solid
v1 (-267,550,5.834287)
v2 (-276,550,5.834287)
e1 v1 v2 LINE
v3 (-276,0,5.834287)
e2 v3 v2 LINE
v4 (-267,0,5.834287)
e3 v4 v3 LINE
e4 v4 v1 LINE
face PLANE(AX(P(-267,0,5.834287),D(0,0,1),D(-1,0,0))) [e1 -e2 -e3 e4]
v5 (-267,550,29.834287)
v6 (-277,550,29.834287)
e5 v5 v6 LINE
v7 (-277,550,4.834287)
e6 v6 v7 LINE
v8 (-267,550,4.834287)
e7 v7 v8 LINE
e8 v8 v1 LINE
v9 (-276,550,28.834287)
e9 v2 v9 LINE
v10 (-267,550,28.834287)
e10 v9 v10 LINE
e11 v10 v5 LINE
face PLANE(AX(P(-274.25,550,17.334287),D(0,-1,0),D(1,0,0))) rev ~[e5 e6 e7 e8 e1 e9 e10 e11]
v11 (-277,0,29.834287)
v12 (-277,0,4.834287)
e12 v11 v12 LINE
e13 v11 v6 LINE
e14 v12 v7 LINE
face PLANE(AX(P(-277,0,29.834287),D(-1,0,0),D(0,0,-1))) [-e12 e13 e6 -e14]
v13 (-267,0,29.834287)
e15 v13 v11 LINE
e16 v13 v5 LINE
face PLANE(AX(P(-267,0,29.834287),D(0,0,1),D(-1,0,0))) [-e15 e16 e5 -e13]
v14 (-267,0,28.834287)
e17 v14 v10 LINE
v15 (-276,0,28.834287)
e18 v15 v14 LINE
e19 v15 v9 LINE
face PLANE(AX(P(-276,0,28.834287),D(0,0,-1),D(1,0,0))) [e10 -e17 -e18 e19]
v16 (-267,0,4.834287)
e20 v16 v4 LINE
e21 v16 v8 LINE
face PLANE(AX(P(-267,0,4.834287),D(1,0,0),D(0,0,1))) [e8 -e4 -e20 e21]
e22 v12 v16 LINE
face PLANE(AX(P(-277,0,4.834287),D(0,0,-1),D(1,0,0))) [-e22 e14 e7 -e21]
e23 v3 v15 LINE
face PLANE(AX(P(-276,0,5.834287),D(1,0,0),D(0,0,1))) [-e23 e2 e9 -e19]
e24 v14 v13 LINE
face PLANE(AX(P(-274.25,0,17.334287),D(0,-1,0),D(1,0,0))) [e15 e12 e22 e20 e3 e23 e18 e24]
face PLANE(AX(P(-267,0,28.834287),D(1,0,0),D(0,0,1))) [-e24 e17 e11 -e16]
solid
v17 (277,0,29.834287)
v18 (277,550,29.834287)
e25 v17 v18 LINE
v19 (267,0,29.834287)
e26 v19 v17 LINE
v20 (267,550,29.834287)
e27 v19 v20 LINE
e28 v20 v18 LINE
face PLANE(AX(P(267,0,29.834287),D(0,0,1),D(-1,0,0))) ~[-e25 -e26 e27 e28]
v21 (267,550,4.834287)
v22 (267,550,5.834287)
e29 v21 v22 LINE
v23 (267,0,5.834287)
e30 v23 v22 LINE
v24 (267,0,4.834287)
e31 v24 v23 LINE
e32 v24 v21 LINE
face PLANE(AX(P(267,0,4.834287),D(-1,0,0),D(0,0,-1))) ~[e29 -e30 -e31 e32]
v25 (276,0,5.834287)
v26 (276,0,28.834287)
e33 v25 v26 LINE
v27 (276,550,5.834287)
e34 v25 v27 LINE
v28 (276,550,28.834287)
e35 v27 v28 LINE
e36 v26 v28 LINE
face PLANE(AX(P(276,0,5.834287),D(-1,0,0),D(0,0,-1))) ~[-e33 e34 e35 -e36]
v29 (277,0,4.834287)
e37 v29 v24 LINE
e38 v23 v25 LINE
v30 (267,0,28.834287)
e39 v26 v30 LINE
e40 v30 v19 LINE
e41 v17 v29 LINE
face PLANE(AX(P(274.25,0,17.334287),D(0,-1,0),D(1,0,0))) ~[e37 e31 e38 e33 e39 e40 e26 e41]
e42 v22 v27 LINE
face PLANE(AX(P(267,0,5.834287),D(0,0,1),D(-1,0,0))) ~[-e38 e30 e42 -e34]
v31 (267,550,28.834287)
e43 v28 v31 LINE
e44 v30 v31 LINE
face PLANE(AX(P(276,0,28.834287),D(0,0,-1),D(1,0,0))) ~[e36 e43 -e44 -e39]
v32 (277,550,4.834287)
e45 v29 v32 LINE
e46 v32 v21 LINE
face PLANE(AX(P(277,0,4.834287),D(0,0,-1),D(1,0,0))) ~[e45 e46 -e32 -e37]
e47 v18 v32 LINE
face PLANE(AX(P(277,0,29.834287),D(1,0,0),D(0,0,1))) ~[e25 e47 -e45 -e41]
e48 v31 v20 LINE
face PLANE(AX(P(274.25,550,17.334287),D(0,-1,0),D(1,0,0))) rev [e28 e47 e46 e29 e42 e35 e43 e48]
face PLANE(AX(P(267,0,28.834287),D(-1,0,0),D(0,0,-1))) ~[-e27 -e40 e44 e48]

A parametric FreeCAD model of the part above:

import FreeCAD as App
import Part
import Sketcher
from FreeCAD import Vector


def add_polygon(sketch, points):
    """Adds a closed chain of lines whose ends are joined by coincident constraints."""
    first, n = sketch.GeometryCount, len(points)
    for a, b in zip(points, points[1:] + points[:1]):
        sketch.addGeometry(Part.LineSegment(App.Vector(*a, 0), App.Vector(*b, 0)), False)
    for i in range(n):
        sketch.addConstraint(Sketcher.Constraint("Coincident", first + i, 2, first + (i + 1) % n, 1))

doc = App.newDocument("Part")
body = doc.addObject("PartDesign::Body", "Body")

sketch1 = body.newObject("Sketcher::SketchObject", "Sketch")
sketch1.AttachmentSupport = (doc.getObject("XZ_Plane"), [""])
sketch1.MapMode = "FlatFace"
add_polygon(sketch1, [(-267, 29.834287), (-277, 29.834287), (-277, 4.834287), (-267, 4.834287), (-267, 5.834287), (-276, 5.834287), (-276, 28.834287), (-267, 28.834287)])
sketch1.addConstraint([
    Sketcher.Constraint("Horizontal", 0),
    Sketcher.Constraint("Vertical", 1),
    Sketcher.Constraint("Horizontal", 2),
    Sketcher.Constraint("Vertical", 3),
    Sketcher.Constraint("Horizontal", 4),
    Sketcher.Constraint("Vertical", 5),
    Sketcher.Constraint("Horizontal", 6),
    Sketcher.Constraint("Vertical", 7),
    Sketcher.Constraint("Vertical", 3, 2, 6, 2),
    Sketcher.Constraint("Equal", 3, 7),
    Sketcher.Constraint("DistanceX", 0, 2, 0, 1, 10.0),
    Sketcher.Constraint("DistanceX", 4, 2, 4, 1, 9.0),
    Sketcher.Constraint("DistanceY", 1, 2, 1, 1, 25.0),
    Sketcher.Constraint("DistanceY", 3, 1, 3, 2, 1.0),
    Sketcher.Constraint("DistanceX", 0, 2, -1, 1, 277.0),
    Sketcher.Constraint("DistanceY", -1, 1, 0, 2, 29.834287),
])
pad1 = body.newObject("PartDesign::Pad", "Pad")
pad1.Profile = sketch1
pad1.Length = 550
pad1.Reversed = True
body2 = doc.addObject("PartDesign::Body", "Body001")
doc.recompute()

mirroring = doc.addObject("Part::Mirroring", "Mirroring")
mirroring.Source = body
mirroring.Base = Vector(0, 0, 0)
mirroring.Normal = Vector(1, 0, 0)
body2.BaseFeature = mirroring
doc.recompute()
mirroring.Visibility = False

doc.recompute()
